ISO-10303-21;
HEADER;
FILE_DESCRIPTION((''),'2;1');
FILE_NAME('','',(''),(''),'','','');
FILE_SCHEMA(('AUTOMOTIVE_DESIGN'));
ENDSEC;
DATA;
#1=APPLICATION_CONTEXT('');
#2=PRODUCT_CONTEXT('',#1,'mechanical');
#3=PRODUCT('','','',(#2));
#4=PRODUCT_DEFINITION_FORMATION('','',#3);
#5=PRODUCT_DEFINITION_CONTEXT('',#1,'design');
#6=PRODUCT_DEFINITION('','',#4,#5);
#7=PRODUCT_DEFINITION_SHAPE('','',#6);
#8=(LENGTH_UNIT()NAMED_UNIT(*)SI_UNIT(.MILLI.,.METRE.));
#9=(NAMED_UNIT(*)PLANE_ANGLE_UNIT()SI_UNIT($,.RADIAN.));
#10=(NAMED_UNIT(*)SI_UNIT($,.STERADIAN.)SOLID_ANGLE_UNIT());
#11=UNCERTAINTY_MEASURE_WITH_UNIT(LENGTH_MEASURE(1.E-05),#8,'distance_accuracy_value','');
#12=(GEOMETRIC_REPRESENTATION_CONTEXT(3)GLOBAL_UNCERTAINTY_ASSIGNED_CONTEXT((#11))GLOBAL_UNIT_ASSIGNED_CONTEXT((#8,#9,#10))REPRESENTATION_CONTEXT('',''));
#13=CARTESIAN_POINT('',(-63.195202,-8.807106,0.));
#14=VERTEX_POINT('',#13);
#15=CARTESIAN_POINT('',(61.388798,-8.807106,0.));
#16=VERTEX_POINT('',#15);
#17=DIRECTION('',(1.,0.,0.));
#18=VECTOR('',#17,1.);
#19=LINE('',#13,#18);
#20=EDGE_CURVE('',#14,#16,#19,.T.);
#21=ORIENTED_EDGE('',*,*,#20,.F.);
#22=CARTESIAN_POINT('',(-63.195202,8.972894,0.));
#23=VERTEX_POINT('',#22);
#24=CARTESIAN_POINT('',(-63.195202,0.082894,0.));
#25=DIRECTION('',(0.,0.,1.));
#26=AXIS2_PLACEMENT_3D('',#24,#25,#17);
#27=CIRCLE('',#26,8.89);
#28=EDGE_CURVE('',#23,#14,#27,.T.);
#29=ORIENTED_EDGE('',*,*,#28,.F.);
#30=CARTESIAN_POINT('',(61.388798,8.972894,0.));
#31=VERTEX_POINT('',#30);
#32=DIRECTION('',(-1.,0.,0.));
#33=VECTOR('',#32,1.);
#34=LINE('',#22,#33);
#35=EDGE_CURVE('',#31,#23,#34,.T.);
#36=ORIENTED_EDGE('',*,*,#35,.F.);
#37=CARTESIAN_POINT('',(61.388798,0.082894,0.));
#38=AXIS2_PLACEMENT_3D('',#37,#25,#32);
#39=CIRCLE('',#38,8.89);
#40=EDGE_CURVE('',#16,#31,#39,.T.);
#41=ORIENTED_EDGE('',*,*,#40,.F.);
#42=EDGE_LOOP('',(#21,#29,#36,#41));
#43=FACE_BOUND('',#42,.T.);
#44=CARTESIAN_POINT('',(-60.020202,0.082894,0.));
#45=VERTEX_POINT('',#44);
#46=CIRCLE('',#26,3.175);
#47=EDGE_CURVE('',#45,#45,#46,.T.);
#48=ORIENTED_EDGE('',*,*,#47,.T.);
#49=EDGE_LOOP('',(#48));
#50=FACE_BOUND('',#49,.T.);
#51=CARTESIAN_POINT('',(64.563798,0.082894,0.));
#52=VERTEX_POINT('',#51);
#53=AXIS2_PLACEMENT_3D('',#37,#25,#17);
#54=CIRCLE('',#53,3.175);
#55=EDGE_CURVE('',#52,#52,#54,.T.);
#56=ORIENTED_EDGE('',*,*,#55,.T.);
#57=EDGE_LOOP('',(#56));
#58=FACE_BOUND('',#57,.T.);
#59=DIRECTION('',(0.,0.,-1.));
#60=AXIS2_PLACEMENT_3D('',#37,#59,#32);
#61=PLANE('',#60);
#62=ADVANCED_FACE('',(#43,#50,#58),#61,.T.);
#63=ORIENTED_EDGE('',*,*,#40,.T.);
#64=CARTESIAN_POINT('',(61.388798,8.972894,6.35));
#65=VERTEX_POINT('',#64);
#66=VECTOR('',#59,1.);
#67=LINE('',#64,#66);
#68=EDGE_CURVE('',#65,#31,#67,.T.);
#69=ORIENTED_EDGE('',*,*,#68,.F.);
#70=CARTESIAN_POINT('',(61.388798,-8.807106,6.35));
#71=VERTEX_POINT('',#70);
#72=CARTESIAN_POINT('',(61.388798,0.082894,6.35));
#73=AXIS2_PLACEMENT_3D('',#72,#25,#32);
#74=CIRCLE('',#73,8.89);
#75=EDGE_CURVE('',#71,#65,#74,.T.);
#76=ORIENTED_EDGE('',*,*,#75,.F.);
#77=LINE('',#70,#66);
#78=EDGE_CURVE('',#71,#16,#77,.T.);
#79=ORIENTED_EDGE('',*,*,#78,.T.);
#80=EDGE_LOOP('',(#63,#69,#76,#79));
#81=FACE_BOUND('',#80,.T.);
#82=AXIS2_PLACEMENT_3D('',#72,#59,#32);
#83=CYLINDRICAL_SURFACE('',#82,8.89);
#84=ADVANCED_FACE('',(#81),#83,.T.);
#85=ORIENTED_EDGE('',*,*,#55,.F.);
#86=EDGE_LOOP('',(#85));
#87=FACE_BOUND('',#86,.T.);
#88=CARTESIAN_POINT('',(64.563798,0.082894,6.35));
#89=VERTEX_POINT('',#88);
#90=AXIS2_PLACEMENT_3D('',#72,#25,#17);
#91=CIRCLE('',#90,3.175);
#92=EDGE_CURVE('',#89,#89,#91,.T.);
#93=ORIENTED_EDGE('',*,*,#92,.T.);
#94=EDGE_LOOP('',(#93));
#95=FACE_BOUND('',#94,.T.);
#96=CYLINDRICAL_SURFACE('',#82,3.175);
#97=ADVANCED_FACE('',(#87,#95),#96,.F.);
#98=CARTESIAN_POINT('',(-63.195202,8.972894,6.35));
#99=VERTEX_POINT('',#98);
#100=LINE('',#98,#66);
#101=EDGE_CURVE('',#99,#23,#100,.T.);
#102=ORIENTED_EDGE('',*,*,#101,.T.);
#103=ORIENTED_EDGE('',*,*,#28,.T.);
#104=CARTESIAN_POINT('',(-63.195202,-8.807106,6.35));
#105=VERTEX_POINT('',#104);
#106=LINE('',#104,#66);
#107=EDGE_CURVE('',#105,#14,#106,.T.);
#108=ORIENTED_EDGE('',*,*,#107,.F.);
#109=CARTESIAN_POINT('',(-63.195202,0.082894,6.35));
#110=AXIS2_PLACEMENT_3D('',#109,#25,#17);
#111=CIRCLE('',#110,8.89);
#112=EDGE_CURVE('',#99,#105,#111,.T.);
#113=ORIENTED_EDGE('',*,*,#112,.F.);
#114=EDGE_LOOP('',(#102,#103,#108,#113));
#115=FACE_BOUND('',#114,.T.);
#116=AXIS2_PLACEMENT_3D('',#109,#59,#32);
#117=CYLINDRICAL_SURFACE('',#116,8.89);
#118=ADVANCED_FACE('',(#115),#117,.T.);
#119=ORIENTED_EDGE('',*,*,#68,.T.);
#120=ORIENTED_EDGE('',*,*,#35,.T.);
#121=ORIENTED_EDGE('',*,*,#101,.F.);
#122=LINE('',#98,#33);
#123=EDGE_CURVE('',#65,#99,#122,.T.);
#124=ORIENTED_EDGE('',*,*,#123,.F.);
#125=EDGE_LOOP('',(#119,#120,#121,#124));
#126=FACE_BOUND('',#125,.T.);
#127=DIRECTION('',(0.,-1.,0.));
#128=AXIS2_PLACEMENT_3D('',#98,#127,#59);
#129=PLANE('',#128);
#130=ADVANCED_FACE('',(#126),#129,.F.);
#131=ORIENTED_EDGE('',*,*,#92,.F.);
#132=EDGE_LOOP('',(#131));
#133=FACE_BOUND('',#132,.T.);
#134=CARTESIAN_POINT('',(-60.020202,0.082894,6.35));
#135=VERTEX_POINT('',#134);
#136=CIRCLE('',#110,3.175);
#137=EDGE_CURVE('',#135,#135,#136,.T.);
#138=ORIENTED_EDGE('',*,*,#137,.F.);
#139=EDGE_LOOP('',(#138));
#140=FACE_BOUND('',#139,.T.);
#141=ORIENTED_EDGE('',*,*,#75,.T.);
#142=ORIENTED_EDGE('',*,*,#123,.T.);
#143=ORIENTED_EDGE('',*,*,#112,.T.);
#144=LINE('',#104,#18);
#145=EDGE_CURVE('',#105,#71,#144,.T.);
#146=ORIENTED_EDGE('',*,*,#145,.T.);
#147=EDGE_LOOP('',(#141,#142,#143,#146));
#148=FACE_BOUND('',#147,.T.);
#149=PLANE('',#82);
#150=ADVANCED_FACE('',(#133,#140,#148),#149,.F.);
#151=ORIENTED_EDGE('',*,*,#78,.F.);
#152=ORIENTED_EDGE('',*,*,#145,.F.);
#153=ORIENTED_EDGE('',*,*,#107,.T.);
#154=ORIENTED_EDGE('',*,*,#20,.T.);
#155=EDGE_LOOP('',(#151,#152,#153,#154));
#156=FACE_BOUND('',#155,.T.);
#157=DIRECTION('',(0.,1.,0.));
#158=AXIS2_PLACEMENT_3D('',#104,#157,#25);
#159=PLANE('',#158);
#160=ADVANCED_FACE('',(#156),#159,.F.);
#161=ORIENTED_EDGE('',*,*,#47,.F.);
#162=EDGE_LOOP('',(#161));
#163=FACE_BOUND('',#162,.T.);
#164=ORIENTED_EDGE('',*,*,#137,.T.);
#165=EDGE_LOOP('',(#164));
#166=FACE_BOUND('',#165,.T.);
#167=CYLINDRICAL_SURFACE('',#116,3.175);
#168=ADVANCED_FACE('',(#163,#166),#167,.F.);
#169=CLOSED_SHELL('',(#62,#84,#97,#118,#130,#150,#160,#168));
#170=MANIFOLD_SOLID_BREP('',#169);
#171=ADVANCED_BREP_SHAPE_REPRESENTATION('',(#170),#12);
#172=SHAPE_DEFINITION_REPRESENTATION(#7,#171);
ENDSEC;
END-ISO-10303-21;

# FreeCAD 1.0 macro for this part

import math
import FreeCAD as App
import Part
import Sketcher

V = App.Vector
Q = App.Units.Quantity

doc = App.newDocument("Part")
body = doc.addObject("PartDesign::Body", "Body")

# Sketch on XY plane
sketch1 = body.newObject("Sketcher::SketchObject", "Sketch")
sketch1.AttachmentSupport = (doc.getObject("XY_Plane"), [""])
sketch1.MapMode = "FlatFace"
sketch1.addGeometry([
    Part.LineSegment(V(-63.2, -8.8, 0), V(61.4, -8.8, 0)),  # 0
    Part.ArcOfCircle(Part.Circle(V(61.4, 0.1, 0), V(0, 0, 1), 8.9), math.radians(-90), math.radians(90)),  # 1
    Part.LineSegment(V(61.4, 9, 0), V(-63.2, 9, 0)),  # 2
    Part.ArcOfCircle(Part.Circle(V(-63.2, 0.1, 0), V(0, 0, 1), 8.9), math.radians(90), math.radians(270)),  # 3
    Part.Circle(V(-63.2, 0.1, 0), V(0, 0, 1), 3.2),  # 4
    Part.Circle(V(61.4, 0.1, 0), V(0, 0, 1), 3.2),  # 5
], False)
sketch1.addConstraint([
    Sketcher.Constraint("Tangent", 0, 2, 1, 1),
    Sketcher.Constraint("Tangent", 1, 2, 2, 1),
    Sketcher.Constraint("Tangent", 2, 2, 3, 1),
    Sketcher.Constraint("Tangent", 3, 2, 0, 1),
    Sketcher.Constraint("Horizontal", 0),
    Sketcher.Constraint("Horizontal", 2),
    Sketcher.Constraint("Coincident", 4, 3, 3, 3),
    Sketcher.Constraint("Coincident", 5, 3, 1, 3),
    Sketcher.Constraint("Equal", 4, 5),
    Sketcher.Constraint("Diameter", 4, Q("0.25 in")),
    Sketcher.Constraint("Radius", 1, Q("0.35 in")),
    Sketcher.Constraint("DistanceX", 3, 3, -1, 1, Q("2.4880001 in")),
    Sketcher.Constraint("DistanceX", 0, 1, 0, 2, Q("124.584 mm")),
    Sketcher.Constraint("DistanceY", -1, 1, 1, 3, Q("0.082894 mm")),
])
pad1 = body.newObject("PartDesign::Pad", "Pad")
pad1.Profile = sketch1
pad1.Length = Q("0.25 in")

doc.recompute()
